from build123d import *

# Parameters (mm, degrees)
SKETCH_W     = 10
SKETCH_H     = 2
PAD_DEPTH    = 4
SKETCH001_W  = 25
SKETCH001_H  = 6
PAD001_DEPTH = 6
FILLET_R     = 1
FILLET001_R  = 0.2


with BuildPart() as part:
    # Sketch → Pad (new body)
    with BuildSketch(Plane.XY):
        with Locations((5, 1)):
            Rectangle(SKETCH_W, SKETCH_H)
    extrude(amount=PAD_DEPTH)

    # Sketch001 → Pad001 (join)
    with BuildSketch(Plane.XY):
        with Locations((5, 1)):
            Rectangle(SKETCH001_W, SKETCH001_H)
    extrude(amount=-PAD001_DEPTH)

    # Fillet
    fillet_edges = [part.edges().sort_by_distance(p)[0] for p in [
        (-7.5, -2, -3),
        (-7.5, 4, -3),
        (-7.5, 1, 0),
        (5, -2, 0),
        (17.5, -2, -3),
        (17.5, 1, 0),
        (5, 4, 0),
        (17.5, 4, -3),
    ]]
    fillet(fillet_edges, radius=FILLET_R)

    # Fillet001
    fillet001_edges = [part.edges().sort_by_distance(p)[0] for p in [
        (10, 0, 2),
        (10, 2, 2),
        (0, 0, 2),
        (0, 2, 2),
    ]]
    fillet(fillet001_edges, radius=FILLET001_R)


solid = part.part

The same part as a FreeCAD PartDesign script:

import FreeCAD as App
import Part
import Sketcher


def edges_at(feature, points):
    """Names of the edges that pass closest to the given points."""
    edges = feature.Shape.Edges
    near = lambda p: min(range(len(edges)), key=lambda i: edges[i].distToShape(Part.Vertex(*p))[0])
    return sorted({f"Edge{near(p) + 1}" for p in points})


def add_polygon(sketch, points):
    """Adds a closed chain of lines whose ends are joined by coincident constraints."""
    first, n = sketch.GeometryCount, len(points)
    for a, b in zip(points, points[1:] + points[:1]):
        sketch.addGeometry(Part.LineSegment(App.Vector(*a, 0), App.Vector(*b, 0)), False)
    for i in range(n):
        sketch.addConstraint(Sketcher.Constraint("Coincident", first + i, 2, first + (i + 1) % n, 1))

doc = App.newDocument("Part")
body = doc.addObject("PartDesign::Body", "Body")

sketch1 = body.newObject("Sketcher::SketchObject", "Sketch")
sketch1.AttachmentSupport = (doc.getObject("XY_Plane"), [""])
sketch1.MapMode = "FlatFace"
add_polygon(sketch1, [(0, 2), (0, 0), (10, 0), (10, 2)])
sketch1.addConstraint([
    Sketcher.Constraint("Vertical", 0),
    Sketcher.Constraint("Horizontal", 1),
    Sketcher.Constraint("Vertical", 2),
    Sketcher.Constraint("Horizontal", 3),
    Sketcher.Constraint("Coincident", 0, 2, -1, 1),
    Sketcher.Constraint("DistanceX", 1, 1, 1, 2, 10.0),
    Sketcher.Constraint("DistanceY", 0, 2, 0, 1, 2.0),
])
pad1 = body.newObject("PartDesign::Pad", "Pad")
pad1.Profile = sketch1
pad1.Length = 4

sketch2 = body.newObject("Sketcher::SketchObject", "Sketch001")
sketch2.AttachmentSupport = (doc.getObject("XY_Plane"), [""])
sketch2.MapMode = "FlatFace"
add_polygon(sketch2, [(-7.5, 4), (-7.5, -2), (17.5, -2), (17.5, 4)])
sketch2.addConstraint([
    Sketcher.Constraint("Vertical", 0),
    Sketcher.Constraint("Horizontal", 1),
    Sketcher.Constraint("Vertical", 2),
    Sketcher.Constraint("Horizontal", 3),
    Sketcher.Constraint("DistanceX", 1, 1, 1, 2, 25.0),
    Sketcher.Constraint("DistanceY", 0, 2, 0, 1, 6.0),
    Sketcher.Constraint("DistanceY", 0, 2, -1, 1, 2.0),
    Sketcher.Constraint("DistanceX", 0, 2, -1, 1, 7.5),
])
pad2 = body.newObject("PartDesign::Pad", "Pad001")
pad2.Profile = sketch2
pad2.Length = 6
pad2.Reversed = True
doc.recompute()

fillet = body.newObject("PartDesign::Fillet", "Fillet")
fillet.Base = (pad2, edges_at(pad2, [
    (-7.5, -2, -3),
    (-7.5, 4, -3),
    (-7.5, 1, 0),
    (5, -2, 0),
    (17.5, -2, -3),
    (17.5, 1, 0),
    (5, 4, 0),
    (17.5, 4, -3),
]))
fillet.Radius = 1
doc.recompute()

fillet2 = body.newObject("PartDesign::Fillet", "Fillet001")
fillet2.Base = (fillet, edges_at(fillet, [
    (10, 0, 2),
    (10, 2, 2),
    (0, 0, 2),
    (0, 2, 2),
]))
fillet2.Radius = 0.2

doc.recompute()
